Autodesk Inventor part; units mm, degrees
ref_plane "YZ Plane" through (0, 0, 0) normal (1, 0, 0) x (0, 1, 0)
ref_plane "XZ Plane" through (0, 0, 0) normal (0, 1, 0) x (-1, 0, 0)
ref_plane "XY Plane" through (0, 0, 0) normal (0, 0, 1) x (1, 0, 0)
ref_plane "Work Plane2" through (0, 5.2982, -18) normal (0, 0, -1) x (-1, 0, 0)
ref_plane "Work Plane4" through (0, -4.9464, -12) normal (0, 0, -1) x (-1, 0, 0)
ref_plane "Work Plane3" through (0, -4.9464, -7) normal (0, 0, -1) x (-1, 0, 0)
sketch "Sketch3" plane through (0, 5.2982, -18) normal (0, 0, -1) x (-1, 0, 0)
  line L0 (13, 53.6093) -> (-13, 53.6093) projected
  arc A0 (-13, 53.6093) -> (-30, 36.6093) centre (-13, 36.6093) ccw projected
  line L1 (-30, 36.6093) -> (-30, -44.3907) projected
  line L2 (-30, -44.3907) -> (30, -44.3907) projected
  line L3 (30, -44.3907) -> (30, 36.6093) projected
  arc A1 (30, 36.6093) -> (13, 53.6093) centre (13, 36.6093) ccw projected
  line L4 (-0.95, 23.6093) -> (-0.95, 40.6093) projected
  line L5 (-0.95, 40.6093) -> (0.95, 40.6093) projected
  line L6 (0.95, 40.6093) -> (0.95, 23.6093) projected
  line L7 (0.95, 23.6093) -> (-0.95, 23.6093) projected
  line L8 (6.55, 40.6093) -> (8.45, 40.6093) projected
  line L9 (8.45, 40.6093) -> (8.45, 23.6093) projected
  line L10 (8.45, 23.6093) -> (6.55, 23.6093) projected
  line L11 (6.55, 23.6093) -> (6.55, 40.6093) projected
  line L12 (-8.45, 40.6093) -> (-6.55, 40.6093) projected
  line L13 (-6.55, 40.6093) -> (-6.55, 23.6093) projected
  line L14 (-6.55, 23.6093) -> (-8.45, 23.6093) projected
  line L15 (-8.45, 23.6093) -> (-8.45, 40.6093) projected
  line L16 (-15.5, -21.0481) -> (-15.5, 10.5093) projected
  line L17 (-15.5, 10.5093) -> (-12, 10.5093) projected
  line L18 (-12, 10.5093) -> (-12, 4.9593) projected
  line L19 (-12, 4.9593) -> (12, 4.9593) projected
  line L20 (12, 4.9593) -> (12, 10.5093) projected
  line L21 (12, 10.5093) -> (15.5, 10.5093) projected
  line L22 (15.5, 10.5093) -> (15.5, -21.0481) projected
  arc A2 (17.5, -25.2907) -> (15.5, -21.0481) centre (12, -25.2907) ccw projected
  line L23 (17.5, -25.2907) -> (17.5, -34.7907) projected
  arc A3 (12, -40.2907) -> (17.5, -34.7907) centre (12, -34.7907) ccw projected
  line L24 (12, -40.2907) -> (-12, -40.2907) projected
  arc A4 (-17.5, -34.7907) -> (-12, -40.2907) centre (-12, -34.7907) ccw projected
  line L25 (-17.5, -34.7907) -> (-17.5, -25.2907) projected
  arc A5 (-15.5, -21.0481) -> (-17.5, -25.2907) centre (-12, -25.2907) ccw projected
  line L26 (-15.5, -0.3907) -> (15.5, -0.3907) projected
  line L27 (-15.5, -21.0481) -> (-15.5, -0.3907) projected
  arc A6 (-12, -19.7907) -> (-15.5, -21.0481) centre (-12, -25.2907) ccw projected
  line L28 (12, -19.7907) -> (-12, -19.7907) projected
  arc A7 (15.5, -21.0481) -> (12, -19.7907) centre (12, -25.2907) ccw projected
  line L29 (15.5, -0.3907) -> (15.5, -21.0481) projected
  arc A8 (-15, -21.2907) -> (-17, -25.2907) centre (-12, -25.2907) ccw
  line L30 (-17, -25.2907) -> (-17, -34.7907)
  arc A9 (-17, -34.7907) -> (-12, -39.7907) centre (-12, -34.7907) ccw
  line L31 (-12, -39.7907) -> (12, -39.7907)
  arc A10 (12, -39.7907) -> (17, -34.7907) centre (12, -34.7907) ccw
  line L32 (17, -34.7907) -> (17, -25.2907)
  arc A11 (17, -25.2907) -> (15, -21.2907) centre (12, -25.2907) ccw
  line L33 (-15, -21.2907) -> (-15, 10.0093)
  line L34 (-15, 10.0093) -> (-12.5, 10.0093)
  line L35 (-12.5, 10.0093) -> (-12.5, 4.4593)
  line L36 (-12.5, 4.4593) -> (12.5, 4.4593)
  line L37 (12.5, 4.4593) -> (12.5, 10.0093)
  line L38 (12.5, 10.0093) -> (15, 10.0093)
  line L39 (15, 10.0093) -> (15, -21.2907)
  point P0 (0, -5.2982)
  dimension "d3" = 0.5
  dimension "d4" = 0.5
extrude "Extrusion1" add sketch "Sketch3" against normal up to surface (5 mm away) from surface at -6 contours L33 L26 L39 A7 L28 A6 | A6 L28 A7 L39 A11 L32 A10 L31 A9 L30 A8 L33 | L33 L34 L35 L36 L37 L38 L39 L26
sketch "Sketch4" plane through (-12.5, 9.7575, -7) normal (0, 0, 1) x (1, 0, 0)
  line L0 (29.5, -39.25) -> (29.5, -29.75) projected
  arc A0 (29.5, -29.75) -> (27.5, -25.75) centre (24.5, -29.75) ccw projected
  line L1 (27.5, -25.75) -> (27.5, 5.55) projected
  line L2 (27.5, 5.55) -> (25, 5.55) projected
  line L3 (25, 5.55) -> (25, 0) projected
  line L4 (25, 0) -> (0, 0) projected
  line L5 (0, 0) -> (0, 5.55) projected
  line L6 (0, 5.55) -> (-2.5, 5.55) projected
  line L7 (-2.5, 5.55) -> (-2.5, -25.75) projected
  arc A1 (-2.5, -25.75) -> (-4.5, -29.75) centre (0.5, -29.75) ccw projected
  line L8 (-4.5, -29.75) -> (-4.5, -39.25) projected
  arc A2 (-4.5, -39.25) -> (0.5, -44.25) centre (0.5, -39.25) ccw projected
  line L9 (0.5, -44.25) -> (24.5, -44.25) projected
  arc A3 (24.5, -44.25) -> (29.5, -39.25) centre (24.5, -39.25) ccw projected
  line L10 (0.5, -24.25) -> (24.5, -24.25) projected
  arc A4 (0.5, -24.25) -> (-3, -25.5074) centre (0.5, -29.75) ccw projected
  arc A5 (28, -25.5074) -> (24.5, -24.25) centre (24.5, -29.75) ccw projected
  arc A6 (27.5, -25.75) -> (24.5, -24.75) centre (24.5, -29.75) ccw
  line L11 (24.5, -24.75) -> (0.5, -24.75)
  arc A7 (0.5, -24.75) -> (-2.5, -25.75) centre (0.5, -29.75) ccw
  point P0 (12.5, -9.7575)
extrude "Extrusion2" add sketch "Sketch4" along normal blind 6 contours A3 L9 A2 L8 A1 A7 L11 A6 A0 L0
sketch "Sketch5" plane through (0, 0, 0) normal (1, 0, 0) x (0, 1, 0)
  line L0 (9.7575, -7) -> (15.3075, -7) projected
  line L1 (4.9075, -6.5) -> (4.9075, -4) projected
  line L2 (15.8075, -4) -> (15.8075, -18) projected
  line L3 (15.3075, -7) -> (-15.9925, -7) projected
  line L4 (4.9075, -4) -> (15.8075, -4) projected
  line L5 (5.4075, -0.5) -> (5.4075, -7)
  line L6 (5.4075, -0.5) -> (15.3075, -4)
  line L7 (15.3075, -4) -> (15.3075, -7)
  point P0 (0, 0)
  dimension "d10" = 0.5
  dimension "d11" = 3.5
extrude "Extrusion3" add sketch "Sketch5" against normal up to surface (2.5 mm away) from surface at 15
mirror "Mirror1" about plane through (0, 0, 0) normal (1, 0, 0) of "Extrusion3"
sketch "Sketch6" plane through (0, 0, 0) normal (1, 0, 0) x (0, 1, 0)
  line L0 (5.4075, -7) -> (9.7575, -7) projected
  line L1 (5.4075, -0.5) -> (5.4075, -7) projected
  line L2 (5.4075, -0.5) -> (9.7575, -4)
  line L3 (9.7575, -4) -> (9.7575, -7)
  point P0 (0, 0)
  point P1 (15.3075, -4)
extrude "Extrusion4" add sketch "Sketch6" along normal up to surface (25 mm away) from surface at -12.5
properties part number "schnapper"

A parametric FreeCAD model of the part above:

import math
import FreeCAD as App
import Part
import Sketcher
from FreeCAD import Vector
Q = App.Units.Quantity

doc = App.newDocument("Part")
body = doc.addObject("PartDesign::Body", "Body")

# Sketch on XY plane
sketch1 = body.newObject("Sketcher::SketchObject", "Sketch")
sketch1.AttachmentSupport = (doc.getObject("XY_Plane"), [""])
sketch1.MapMode = "FlatFace"
sketch1.AttachmentOffset = App.Placement(Vector(0, 0, -12), App.Rotation())
sketch1.addGeometry(Part.ArcOfCircle(Part.Circle(Vector(12, -19.9925, 0), Vector(0, 0, 1), 5), math.radians(0), math.radians(53.130102)), False)
sketch1.addGeometry(Part.LineSegment(Vector(17, -19.9925, 0), Vector(17, -29.4925, 0)), False)
sketch1.addGeometry(Part.ArcOfCircle(Part.Circle(Vector(12, -29.4925, 0), Vector(0, 0, 1), 5), math.radians(-90), math.radians(0)), False)
sketch1.addGeometry(Part.LineSegment(Vector(12, -34.4925, 0), Vector(-12, -34.4925, 0)), False)
sketch1.addGeometry(Part.ArcOfCircle(Part.Circle(Vector(-12, -29.4925, 0), Vector(0, 0, 1), 5), math.radians(180), math.radians(270)), False)
sketch1.addGeometry(Part.LineSegment(Vector(-17, -29.4925, 0), Vector(-17, -19.9925, 0)), False)
sketch1.addGeometry(Part.ArcOfCircle(Part.Circle(Vector(-12, -19.9925, 0), Vector(0, 0, 1), 5), math.radians(126.869898), math.radians(180)), False)
sketch1.addGeometry(Part.LineSegment(Vector(-15, -15.9925, 0), Vector(-15, 15.3075, 0)), False)
sketch1.addGeometry(Part.LineSegment(Vector(-15, 15.3075, 0), Vector(-12.5, 15.3075, 0)), False)
sketch1.addGeometry(Part.LineSegment(Vector(-12.5, 15.3075, 0), Vector(-12.5, 9.7575, 0)), False)
sketch1.addGeometry(Part.LineSegment(Vector(-12.5, 9.7575, 0), Vector(12.5, 9.7575, 0)), False)
sketch1.addGeometry(Part.LineSegment(Vector(12.5, 9.7575, 0), Vector(12.5, 15.3075, 0)), False)
sketch1.addGeometry(Part.LineSegment(Vector(12.5, 15.3075, 0), Vector(15, 15.3075, 0)), False)
sketch1.addGeometry(Part.LineSegment(Vector(15, 15.3075, 0), Vector(15, -15.9925, 0)), False)
sketch1.addConstraint(Sketcher.Constraint("Tangent", 0, 1, 1, 1))
sketch1.addConstraint(Sketcher.Constraint("Tangent", 1, 2, 2, 2))
sketch1.addConstraint(Sketcher.Constraint("Tangent", 2, 1, 3, 1))
sketch1.addConstraint(Sketcher.Constraint("Tangent", 3, 2, 4, 2))
sketch1.addConstraint(Sketcher.Constraint("Tangent", 4, 1, 5, 1))
sketch1.addConstraint(Sketcher.Constraint("Tangent", 5, 2, 6, 2))
sketch1.addConstraint(Sketcher.Constraint("Coincident", 6, 1, 7, 1))
sketch1.addConstraint(Sketcher.Constraint("Coincident", 7, 2, 8, 1))
sketch1.addConstraint(Sketcher.Constraint("Coincident", 8, 2, 9, 1))
sketch1.addConstraint(Sketcher.Constraint("Coincident", 9, 2, 10, 1))
sketch1.addConstraint(Sketcher.Constraint("Coincident", 10, 2, 11, 1))
sketch1.addConstraint(Sketcher.Constraint("Coincident", 11, 2, 12, 1))
sketch1.addConstraint(Sketcher.Constraint("Coincident", 12, 2, 13, 1))
sketch1.addConstraint(Sketcher.Constraint("Coincident", 13, 2, 0, 2))
sketch1.addConstraint(Sketcher.Constraint("Vertical", 1))
sketch1.addConstraint(Sketcher.Constraint("Horizontal", 3))
sketch1.addConstraint(Sketcher.Constraint("Vertical", 5))
sketch1.addConstraint(Sketcher.Constraint("Vertical", 7))
sketch1.addConstraint(Sketcher.Constraint("Horizontal", 8))
sketch1.addConstraint(Sketcher.Constraint("Vertical", 9))
sketch1.addConstraint(Sketcher.Constraint("Horizontal", 10))
sketch1.addConstraint(Sketcher.Constraint("Vertical", 11))
sketch1.addConstraint(Sketcher.Constraint("Horizontal", 12))
sketch1.addConstraint(Sketcher.Constraint("Vertical", 13))
sketch1.addConstraint(Sketcher.Constraint("Equal", 0, 2))
sketch1.addConstraint(Sketcher.Constraint("Equal", 2, 4))
sketch1.addConstraint(Sketcher.Constraint("Equal", 4, 6))
sketch1.addConstraint(Sketcher.Constraint("Symmetric", 0, 3, 6, 3, -2))
sketch1.addConstraint(Sketcher.Constraint("Symmetric", 8, 2, 11, 2, -2))
sketch1.addConstraint(Sketcher.Constraint("Horizontal", 6, 1, 13, 2))
sketch1.addConstraint(Sketcher.Constraint("Radius", 0, Q("5 mm")))
sketch1.addConstraint(Sketcher.Constraint("DistanceX", 8, 2, 6, 3, Q("0.5 mm")))
sketch1.addConstraint(Sketcher.Constraint("DistanceX", 3, 2, 3, 1, Q("24 mm")))
sketch1.addConstraint(Sketcher.Constraint("DistanceX", 8, 1, 8, 2, Q("2.5 mm")))
sketch1.addConstraint(Sketcher.Constraint("DistanceY", 1, 2, 1, 1, Q("9.5 mm")))
sketch1.addConstraint(Sketcher.Constraint("DistanceY", 7, 1, 7, 2, Q("31.3 mm")))
sketch1.addConstraint(Sketcher.Constraint("DistanceY", 9, 2, 9, 1, Q("5.55 mm")))
sketch1.addConstraint(Sketcher.Constraint("DistanceY", 0, 3, -1, 1, Q("19.9925 mm")))
pad1 = body.newObject("PartDesign::Pad", "Pad")
pad1.Profile = sketch1
pad1.Length = 5

# Sketch on XY plane
sketch2 = body.newObject("Sketcher::SketchObject", "Sketch001")
sketch2.AttachmentSupport = (doc.getObject("XY_Plane"), [""])
sketch2.MapMode = "FlatFace"
sketch2.AttachmentOffset = App.Placement(Vector(0, 0, -7), App.Rotation())
sketch2.addGeometry(Part.ArcOfCircle(Part.Circle(Vector(12, -29.4925, 0), Vector(0, 0, 1), 5), math.radians(-90), math.radians(0)), False)
sketch2.addGeometry(Part.LineSegment(Vector(17, -29.4925, 0), Vector(17, -19.9925, 0)), False)
sketch2.addGeometry(Part.ArcOfCircle(Part.Circle(Vector(12, -19.9925, 0), Vector(0, 0, 1), 5), math.radians(0), math.radians(90)), False)
sketch2.addGeometry(Part.LineSegment(Vector(12, -14.9925, 0), Vector(-12, -14.9925, 0)), False)
sketch2.addGeometry(Part.ArcOfCircle(Part.Circle(Vector(-12, -19.9925, 0), Vector(0, 0, 1), 5), math.radians(90), math.radians(180)), False)
sketch2.addGeometry(Part.LineSegment(Vector(-17, -19.9925, 0), Vector(-17, -29.4925, 0)), False)
sketch2.addGeometry(Part.ArcOfCircle(Part.Circle(Vector(-12, -29.4925, 0), Vector(0, 0, 1), 5), math.radians(180), math.radians(270)), False)
sketch2.addGeometry(Part.LineSegment(Vector(-12, -34.4925, 0), Vector(12, -34.4925, 0)), False)
sketch2.addConstraint(Sketcher.Constraint("Tangent", 0, 2, 1, 1))
sketch2.addConstraint(Sketcher.Constraint("Tangent", 1, 2, 2, 1))
sketch2.addConstraint(Sketcher.Constraint("Tangent", 2, 2, 3, 1))
sketch2.addConstraint(Sketcher.Constraint("Tangent", 3, 2, 4, 1))
sketch2.addConstraint(Sketcher.Constraint("Tangent", 4, 2, 5, 1))
sketch2.addConstraint(Sketcher.Constraint("Tangent", 5, 2, 6, 1))
sketch2.addConstraint(Sketcher.Constraint("Tangent", 6, 2, 7, 1))
sketch2.addConstraint(Sketcher.Constraint("Tangent", 7, 2, 0, 1))
sketch2.addConstraint(Sketcher.Constraint("Vertical", 1))
sketch2.addConstraint(Sketcher.Constraint("Horizontal", 3))
sketch2.addConstraint(Sketcher.Constraint("Vertical", 5))
sketch2.addConstraint(Sketcher.Constraint("Horizontal", 7))
sketch2.addConstraint(Sketcher.Constraint("Equal", 0, 2))
sketch2.addConstraint(Sketcher.Constraint("Equal", 2, 4))
sketch2.addConstraint(Sketcher.Constraint("Equal", 4, 6))
sketch2.addConstraint(Sketcher.Constraint("Radius", 0, Q("5 mm")))
sketch2.addConstraint(Sketcher.Constraint("DistanceX", 3, 2, 3, 1, Q("24 mm")))
sketch2.addConstraint(Sketcher.Constraint("DistanceY", 1, 1, 1, 2, Q("9.5 mm")))
sketch2.addConstraint(Sketcher.Constraint("DistanceX", -1, 1, 0, 3, Q("12 mm")))
sketch2.addConstraint(Sketcher.Constraint("DistanceY", 0, 3, -1, 1, Q("29.4925 mm")))
pad2 = body.newObject("PartDesign::Pad", "Pad001")
pad2.Profile = sketch2
pad2.Length = 6

# Sketch on YZ plane
sketch3 = body.newObject("Sketcher::SketchObject", "Sketch002")
sketch3.AttachmentSupport = (doc.getObject("YZ_Plane"), [""])
sketch3.MapMode = "FlatFace"
sketch3.AttachmentOffset = App.Placement(Vector(0, 0, 15), App.Rotation())
sketch3.addGeometry(Part.LineSegment(Vector(5.4075, -7, 0), Vector(15.3075, -7, 0)), False)
sketch3.addGeometry(Part.LineSegment(Vector(15.3075, -7, 0), Vector(15.3075, -4, 0)), False)
sketch3.addGeometry(Part.LineSegment(Vector(15.3075, -4, 0), Vector(5.4075, -0.5, 0)), False)
sketch3.addGeometry(Part.LineSegment(Vector(5.4075, -0.5, 0), Vector(5.4075, -7, 0)), False)
sketch3.addConstraint(Sketcher.Constraint("Coincident", 0, 2, 1, 1))
sketch3.addConstraint(Sketcher.Constraint("Coincident", 1, 2, 2, 1))
sketch3.addConstraint(Sketcher.Constraint("Coincident", 2, 2, 3, 1))
sketch3.addConstraint(Sketcher.Constraint("Coincident", 3, 2, 0, 1))
sketch3.addConstraint(Sketcher.Constraint("Horizontal", 0))
sketch3.addConstraint(Sketcher.Constraint("Vertical", 1))
sketch3.addConstraint(Sketcher.Constraint("Vertical", 3))
sketch3.addConstraint(Sketcher.Constraint("DistanceY", 2, 2, -1, 1, Q("0.5 mm")))
sketch3.addConstraint(Sketcher.Constraint("DistanceY", 1, 2, 2, 2, Q("3.5 mm")))
sketch3.addConstraint(Sketcher.Constraint("DistanceY", 1, 1, 1, 2, Q("3 mm")))
sketch3.addConstraint(Sketcher.Constraint("DistanceX", 0, 1, 0, 2, Q("9.9 mm")))
sketch3.addConstraint(Sketcher.Constraint("DistanceX", -1, 1, 0, 2, Q("15.3075 mm")))
pad3 = body.newObject("PartDesign::Pad", "Pad002")
pad3.Profile = sketch3
pad3.Length = 2.5
pad3.Reversed = True
doc.recompute()

mirrored = body.newObject("PartDesign::Mirrored", "Mirrored")
mirrored.Originals = [pad3]
mirrored.MirrorPlane = (doc.getObject("YZ_Plane"), [""])
body.Tip = mirrored

# Sketch on YZ plane
sketch4 = body.newObject("Sketcher::SketchObject", "Sketch003")
sketch4.AttachmentSupport = (doc.getObject("YZ_Plane"), [""])
sketch4.MapMode = "FlatFace"
sketch4.AttachmentOffset = App.Placement(Vector(0, 0, -12.5), App.Rotation())
sketch4.addGeometry(Part.LineSegment(Vector(5.4075, -0.5, 0), Vector(5.4075, -7, 0)), False)
sketch4.addGeometry(Part.LineSegment(Vector(5.4075, -7, 0), Vector(9.7575, -7, 0)), False)
sketch4.addGeometry(Part.LineSegment(Vector(9.7575, -7, 0), Vector(9.7575, -4, 0)), False)
sketch4.addGeometry(Part.LineSegment(Vector(9.7575, -4, 0), Vector(5.4075, -0.5, 0)), False)
sketch4.addConstraint(Sketcher.Constraint("Coincident", 0, 2, 1, 1))
sketch4.addConstraint(Sketcher.Constraint("Coincident", 1, 2, 2, 1))
sketch4.addConstraint(Sketcher.Constraint("Coincident", 2, 2, 3, 1))
sketch4.addConstraint(Sketcher.Constraint("Coincident", 3, 2, 0, 1))
sketch4.addConstraint(Sketcher.Constraint("Vertical", 0))
sketch4.addConstraint(Sketcher.Constraint("Horizontal", 1))
sketch4.addConstraint(Sketcher.Constraint("Vertical", 2))
sketch4.addConstraint(Sketcher.Constraint("DistanceY", 2, 1, 2, 2, Q("3 mm")))
sketch4.addConstraint(Sketcher.Constraint("DistanceY", 0, 2, 0, 1, Q("6.5 mm")))
sketch4.addConstraint(Sketcher.Constraint("DistanceY", 0, 2, -1, 1, Q("7 mm")))
sketch4.addConstraint(Sketcher.Constraint("DistanceX", 1, 1, 1, 2, Q("4.35 mm")))
sketch4.addConstraint(Sketcher.Constraint("DistanceX", -1, 1, 0, 2, Q("5.4075 mm")))
pad4 = body.newObject("PartDesign::Pad", "Pad003")
pad4.Profile = sketch4
pad4.Length = 25

doc.recompute()
